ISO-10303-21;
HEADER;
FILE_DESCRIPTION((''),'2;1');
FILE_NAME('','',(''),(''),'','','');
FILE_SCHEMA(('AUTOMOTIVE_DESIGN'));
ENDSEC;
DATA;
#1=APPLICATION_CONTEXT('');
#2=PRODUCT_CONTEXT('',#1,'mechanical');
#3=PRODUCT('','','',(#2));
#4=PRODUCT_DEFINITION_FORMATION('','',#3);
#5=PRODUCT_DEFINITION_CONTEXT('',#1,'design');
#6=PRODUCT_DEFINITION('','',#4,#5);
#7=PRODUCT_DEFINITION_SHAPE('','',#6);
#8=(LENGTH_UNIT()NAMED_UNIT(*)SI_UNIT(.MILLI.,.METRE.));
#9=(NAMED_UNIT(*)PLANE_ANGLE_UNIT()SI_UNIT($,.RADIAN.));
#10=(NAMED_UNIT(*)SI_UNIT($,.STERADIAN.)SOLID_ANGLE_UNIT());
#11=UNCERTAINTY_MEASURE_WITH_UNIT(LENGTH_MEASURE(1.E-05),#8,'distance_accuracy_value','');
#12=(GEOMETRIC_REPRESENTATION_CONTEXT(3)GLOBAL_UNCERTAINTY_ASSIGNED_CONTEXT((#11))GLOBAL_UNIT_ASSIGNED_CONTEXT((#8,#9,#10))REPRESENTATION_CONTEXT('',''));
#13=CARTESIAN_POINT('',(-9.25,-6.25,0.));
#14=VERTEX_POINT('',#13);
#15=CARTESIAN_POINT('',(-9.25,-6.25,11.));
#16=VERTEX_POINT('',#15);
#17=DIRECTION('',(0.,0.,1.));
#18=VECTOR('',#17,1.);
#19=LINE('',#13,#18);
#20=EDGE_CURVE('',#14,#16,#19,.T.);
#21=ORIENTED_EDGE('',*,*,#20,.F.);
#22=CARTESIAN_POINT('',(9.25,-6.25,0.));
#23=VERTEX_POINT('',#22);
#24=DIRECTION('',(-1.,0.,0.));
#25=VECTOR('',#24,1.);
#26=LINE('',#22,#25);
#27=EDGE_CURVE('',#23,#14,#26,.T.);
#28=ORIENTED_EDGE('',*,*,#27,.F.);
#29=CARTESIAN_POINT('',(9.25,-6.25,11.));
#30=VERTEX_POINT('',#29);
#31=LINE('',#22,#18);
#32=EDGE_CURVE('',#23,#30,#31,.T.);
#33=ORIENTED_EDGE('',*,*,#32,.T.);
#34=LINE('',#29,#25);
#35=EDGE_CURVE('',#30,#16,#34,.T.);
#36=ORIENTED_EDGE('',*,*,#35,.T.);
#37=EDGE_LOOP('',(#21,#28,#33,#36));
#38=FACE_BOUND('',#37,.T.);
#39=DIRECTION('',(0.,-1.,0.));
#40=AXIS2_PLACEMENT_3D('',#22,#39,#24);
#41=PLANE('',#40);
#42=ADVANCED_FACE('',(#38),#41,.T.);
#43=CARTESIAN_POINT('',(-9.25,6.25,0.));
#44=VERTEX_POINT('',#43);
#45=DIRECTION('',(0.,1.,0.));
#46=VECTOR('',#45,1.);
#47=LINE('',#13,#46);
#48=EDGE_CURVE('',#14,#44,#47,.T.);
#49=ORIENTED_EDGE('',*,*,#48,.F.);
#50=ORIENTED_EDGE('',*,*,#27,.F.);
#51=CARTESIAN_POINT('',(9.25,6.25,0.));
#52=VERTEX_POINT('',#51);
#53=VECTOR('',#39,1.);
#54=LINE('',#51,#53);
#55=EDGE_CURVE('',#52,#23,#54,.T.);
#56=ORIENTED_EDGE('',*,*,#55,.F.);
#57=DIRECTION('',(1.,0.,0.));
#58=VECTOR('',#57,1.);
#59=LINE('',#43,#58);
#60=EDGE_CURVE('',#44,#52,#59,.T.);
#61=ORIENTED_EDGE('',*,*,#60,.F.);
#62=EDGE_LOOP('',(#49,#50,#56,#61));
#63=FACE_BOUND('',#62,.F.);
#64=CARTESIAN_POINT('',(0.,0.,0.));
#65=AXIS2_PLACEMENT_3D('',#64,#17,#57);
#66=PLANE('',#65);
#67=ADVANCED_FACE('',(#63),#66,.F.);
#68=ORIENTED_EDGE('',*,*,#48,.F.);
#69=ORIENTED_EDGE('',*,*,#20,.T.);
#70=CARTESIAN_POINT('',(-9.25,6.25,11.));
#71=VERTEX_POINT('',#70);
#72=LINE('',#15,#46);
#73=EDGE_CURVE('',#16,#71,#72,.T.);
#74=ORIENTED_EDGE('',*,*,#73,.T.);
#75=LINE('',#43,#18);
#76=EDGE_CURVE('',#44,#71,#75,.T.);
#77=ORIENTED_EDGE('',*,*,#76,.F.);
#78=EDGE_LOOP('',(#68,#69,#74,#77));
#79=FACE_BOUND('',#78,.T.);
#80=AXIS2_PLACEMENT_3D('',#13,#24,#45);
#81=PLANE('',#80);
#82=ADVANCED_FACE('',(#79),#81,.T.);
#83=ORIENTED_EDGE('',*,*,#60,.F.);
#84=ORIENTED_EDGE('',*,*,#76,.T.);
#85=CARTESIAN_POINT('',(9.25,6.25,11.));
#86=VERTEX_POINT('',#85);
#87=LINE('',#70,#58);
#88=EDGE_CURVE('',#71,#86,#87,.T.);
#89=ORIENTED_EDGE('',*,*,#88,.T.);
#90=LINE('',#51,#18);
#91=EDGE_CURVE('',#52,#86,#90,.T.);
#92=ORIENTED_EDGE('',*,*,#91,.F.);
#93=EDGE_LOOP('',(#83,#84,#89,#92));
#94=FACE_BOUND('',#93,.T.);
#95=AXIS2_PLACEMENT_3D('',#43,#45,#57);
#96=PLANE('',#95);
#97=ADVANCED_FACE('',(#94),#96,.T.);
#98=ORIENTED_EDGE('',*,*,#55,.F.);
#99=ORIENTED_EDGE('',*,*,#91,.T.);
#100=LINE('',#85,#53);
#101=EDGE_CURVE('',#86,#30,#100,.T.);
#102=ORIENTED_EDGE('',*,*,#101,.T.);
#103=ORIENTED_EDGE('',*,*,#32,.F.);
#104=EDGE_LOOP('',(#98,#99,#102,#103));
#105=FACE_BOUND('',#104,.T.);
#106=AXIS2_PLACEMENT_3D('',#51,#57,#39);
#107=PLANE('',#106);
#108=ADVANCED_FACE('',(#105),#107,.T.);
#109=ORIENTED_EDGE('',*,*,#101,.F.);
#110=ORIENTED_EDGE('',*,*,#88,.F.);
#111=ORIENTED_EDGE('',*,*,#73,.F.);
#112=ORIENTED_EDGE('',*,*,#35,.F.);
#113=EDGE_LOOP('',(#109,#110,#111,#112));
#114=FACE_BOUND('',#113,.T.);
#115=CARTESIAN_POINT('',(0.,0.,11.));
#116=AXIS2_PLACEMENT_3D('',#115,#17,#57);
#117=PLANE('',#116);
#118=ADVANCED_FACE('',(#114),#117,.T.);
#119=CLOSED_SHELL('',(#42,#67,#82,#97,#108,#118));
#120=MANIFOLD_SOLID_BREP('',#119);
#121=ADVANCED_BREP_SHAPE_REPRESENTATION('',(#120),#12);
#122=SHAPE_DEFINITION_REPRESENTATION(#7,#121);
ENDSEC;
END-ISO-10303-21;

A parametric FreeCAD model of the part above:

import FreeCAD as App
import Part
import Sketcher
from FreeCAD import Vector
Q = App.Units.Quantity

doc = App.newDocument("Part")
body = doc.addObject("PartDesign::Body", "Body")

sketch1 = body.newObject("Sketcher::SketchObject", "Sketch")
sketch1.AttachmentSupport = (doc.getObject("XY_Plane"), [""])
sketch1.MapMode = "FlatFace"
sketch1.addGeometry([
    Part.LineSegment(Vector(9, 6, 0), Vector(-9, 6, 0)),
    Part.LineSegment(Vector(-9, 6, 0), Vector(-9, -6, 0)),
    Part.LineSegment(Vector(-9, -6, 0), Vector(9, -6, 0)),
    Part.LineSegment(Vector(9, -6, 0), Vector(9, 6, 0)),
], False)
sketch1.addConstraint([
    Sketcher.Constraint("Coincident", 0, 2, 1, 1),
    Sketcher.Constraint("Coincident", 1, 2, 2, 1),
    Sketcher.Constraint("Coincident", 2, 2, 3, 1),
    Sketcher.Constraint("Coincident", 3, 2, 0, 1),
    Sketcher.Constraint("Horizontal", 0),
    Sketcher.Constraint("Vertical", 1),
    Sketcher.Constraint("Horizontal", 2),
    Sketcher.Constraint("Vertical", 3),
    Sketcher.Constraint("Symmetric", 0, 2, 2, 2, -1, 1),
    Sketcher.Constraint("DistanceX", 0, 2, 0, 1, Q("18.5 mm")),
    Sketcher.Constraint("DistanceY", 1, 2, 1, 1, Q("12.5 mm")),
])
pad1 = body.newObject("PartDesign::Pad", "Pad")
pad1.Profile = sketch1
pad1.Length = 11

doc.recompute()
